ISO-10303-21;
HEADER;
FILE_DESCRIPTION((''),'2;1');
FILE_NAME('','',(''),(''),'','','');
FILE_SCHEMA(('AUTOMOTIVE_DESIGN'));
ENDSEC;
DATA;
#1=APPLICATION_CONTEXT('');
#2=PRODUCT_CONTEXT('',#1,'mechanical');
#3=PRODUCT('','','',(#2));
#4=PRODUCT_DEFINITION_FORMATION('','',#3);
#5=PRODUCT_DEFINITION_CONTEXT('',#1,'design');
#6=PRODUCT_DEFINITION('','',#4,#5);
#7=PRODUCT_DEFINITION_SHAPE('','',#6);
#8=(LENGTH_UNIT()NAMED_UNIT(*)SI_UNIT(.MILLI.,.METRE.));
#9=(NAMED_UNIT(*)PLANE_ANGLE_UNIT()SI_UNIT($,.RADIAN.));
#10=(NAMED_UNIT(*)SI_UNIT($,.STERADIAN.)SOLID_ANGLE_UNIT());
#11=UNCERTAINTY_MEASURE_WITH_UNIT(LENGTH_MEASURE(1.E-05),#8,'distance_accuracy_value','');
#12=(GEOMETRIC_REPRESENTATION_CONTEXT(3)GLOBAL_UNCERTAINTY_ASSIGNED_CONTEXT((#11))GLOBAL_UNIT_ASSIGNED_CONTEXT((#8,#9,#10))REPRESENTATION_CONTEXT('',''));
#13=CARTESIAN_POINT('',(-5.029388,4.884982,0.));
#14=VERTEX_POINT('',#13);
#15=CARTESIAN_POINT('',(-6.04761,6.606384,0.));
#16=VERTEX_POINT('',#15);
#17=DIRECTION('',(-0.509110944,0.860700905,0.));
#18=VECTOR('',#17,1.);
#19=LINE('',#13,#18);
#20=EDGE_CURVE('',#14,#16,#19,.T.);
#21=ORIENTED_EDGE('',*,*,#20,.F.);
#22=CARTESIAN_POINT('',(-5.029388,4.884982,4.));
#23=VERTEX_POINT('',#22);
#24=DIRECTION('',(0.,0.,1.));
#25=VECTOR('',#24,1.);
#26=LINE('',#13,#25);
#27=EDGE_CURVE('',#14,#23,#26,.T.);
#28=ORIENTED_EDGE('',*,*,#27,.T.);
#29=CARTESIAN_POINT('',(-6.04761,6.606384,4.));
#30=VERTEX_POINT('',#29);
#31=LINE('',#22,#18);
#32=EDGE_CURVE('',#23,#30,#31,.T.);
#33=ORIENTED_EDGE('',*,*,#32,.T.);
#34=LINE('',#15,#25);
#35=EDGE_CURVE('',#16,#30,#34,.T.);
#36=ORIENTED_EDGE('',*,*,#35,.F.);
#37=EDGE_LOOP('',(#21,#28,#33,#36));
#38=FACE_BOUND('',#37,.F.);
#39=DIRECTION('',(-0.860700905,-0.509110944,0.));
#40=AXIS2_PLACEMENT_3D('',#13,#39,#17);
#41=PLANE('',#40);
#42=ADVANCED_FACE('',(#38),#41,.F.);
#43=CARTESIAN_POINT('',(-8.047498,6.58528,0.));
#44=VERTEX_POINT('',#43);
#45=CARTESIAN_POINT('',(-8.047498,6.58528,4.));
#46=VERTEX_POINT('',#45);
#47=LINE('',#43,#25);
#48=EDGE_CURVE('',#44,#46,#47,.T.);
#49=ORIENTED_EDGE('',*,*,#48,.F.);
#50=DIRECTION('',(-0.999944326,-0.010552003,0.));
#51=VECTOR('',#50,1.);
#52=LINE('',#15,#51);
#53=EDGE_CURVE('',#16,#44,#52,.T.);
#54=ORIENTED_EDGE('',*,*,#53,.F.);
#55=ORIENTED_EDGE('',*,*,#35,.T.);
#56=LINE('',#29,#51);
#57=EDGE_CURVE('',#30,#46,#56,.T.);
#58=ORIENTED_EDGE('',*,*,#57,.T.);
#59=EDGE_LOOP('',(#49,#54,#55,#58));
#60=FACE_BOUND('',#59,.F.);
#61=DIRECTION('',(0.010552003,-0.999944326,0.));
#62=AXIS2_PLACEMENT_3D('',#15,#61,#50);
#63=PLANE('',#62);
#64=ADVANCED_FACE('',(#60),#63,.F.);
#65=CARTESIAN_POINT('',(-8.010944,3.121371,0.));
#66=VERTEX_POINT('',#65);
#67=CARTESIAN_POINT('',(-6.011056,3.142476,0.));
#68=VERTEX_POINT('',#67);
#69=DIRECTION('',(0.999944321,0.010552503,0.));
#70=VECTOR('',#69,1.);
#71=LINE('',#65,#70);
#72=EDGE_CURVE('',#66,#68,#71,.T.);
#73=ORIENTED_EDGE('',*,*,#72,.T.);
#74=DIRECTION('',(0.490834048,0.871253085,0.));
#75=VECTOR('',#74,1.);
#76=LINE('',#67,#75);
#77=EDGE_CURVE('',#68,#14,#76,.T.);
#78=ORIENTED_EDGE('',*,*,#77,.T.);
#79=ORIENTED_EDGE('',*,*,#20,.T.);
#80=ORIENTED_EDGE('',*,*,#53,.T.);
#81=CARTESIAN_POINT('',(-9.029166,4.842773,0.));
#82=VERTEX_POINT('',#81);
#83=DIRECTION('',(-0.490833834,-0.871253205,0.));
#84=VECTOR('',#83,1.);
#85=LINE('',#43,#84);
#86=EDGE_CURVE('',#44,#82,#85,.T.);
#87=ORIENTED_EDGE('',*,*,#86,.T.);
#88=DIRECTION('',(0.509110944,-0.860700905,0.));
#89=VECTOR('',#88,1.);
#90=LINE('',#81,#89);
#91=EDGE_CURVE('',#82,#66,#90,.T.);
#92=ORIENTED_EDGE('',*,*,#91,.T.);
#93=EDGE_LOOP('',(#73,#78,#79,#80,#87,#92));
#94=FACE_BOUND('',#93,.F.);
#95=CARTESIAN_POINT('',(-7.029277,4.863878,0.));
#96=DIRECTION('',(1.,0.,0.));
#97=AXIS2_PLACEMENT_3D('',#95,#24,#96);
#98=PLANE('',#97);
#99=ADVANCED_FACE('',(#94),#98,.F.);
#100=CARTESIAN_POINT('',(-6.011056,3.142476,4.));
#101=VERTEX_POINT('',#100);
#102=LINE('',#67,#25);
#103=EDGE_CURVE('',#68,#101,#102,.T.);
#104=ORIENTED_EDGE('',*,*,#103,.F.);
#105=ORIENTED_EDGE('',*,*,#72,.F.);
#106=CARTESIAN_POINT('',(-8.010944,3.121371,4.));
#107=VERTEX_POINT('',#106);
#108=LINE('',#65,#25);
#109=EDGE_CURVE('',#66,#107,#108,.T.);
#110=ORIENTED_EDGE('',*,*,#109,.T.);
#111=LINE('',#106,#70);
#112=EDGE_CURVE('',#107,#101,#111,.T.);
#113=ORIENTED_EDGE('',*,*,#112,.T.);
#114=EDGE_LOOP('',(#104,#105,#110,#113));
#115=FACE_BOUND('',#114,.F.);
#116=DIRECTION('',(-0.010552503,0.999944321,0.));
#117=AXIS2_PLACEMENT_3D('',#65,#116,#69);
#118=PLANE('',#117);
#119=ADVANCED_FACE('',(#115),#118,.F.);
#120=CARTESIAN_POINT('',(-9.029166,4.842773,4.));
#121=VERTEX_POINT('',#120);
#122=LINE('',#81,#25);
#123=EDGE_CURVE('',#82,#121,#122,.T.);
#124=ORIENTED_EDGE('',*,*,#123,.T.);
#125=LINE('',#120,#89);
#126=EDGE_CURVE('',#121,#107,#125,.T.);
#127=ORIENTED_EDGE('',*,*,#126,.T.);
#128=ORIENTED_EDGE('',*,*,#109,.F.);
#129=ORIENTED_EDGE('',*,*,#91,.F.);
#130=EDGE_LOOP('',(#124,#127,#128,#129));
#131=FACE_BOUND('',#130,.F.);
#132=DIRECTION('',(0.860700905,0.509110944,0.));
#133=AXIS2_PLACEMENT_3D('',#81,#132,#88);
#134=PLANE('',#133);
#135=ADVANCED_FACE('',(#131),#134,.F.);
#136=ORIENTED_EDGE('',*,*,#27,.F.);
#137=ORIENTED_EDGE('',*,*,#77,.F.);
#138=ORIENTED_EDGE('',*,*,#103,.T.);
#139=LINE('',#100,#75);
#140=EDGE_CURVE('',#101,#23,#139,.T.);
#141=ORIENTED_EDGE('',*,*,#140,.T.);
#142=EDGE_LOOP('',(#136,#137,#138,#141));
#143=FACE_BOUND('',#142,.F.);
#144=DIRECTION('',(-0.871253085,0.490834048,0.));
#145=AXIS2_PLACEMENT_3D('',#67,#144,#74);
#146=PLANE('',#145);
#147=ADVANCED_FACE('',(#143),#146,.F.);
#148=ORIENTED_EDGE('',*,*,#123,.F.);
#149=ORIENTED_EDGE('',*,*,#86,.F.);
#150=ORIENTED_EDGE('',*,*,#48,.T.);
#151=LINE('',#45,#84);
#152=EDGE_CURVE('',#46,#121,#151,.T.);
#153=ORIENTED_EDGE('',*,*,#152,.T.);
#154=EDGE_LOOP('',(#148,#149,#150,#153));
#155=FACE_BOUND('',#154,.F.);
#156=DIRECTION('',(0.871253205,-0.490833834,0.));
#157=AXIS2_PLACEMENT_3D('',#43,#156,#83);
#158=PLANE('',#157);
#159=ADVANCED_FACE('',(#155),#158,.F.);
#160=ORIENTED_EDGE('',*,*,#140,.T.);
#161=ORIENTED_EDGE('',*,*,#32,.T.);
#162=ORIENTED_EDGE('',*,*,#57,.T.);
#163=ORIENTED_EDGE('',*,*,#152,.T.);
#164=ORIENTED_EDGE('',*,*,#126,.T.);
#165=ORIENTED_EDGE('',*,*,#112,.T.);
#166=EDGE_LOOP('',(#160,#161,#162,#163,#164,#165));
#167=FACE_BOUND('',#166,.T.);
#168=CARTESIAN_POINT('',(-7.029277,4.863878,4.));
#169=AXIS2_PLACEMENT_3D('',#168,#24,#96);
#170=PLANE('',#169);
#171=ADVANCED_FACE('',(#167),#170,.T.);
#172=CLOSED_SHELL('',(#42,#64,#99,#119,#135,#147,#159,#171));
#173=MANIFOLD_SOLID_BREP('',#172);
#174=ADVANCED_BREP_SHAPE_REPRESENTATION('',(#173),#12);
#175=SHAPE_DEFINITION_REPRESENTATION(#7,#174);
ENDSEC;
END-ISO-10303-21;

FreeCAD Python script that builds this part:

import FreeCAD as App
import Part
import Sketcher
from FreeCAD import Vector

doc = App.newDocument("Part")
body = doc.addObject("PartDesign::Body", "Body")

# Sketch on XY plane
sketch1 = doc.addObject("Sketcher::SketchObject", "Sketch")
body.addObject(sketch1)
sketch1.AttachmentSupport = (doc.XY_Plane, [""])
sketch1.MapMode = "FlatFace"
sketch1.addGeometry(Part.LineSegment(Vector(-6, 3.1, 0), Vector(-5, 4.9, 0)), False)
sketch1.addGeometry(Part.LineSegment(Vector(-5, 4.9, 0), Vector(-6, 6.6, 0)), False)
sketch1.addGeometry(Part.LineSegment(Vector(-6, 6.6, 0), Vector(-8, 6.6, 0)), False)
sketch1.addGeometry(Part.LineSegment(Vector(-8, 6.6, 0), Vector(-9, 4.8, 0)), False)
sketch1.addGeometry(Part.LineSegment(Vector(-9, 4.8, 0), Vector(-8, 3.1, 0)), False)
sketch1.addGeometry(Part.LineSegment(Vector(-8, 3.1, 0), Vector(-6, 3.1, 0)), False)
sketch1.addConstraint(Sketcher.Constraint("Coincident", 0, 2, 1, 1))
sketch1.addConstraint(Sketcher.Constraint("Coincident", 1, 2, 2, 1))
sketch1.addConstraint(Sketcher.Constraint("Coincident", 2, 2, 3, 1))
sketch1.addConstraint(Sketcher.Constraint("Coincident", 3, 2, 4, 1))
sketch1.addConstraint(Sketcher.Constraint("Coincident", 4, 2, 5, 1))
sketch1.addConstraint(Sketcher.Constraint("Coincident", 5, 2, 0, 1))
sketch1.addConstraint(Sketcher.Constraint("Parallel", 0, 3))
sketch1.addConstraint(Sketcher.Constraint("Parallel", 1, 4))
sketch1.addConstraint(Sketcher.Constraint("Parallel", 2, 5))
sketch1.addConstraint(Sketcher.Constraint("Equal", 0, 1))
sketch1.addConstraint(Sketcher.Constraint("Equal", 1, 2))
sketch1.addConstraint(Sketcher.Constraint("Equal", 2, 3))
sketch1.addConstraint(Sketcher.Constraint("Distance", 0, 2.0))
sketch1.addConstraint(Sketcher.Constraint("DistanceY", 0, 2, 2, 2, 1.700298))
sketch1.addConstraint(Sketcher.Constraint("DistanceX", 1, 2, -1, 1, 6.04761))
sketch1.addConstraint(Sketcher.Constraint("DistanceY", -1, 1, 2, 2, 6.58528))
sketch1.addConstraint(Sketcher.Constraint("DistanceY", -1, 1, 4, 2, 3.121371))
sketch1.addConstraint(Sketcher.Constraint("DistanceX", 1, 2, 0, 2, 1.018222))
pad1 = doc.addObject("PartDesign::Pad", "Pad")
body.addObject(pad1)
pad1.Profile = sketch1
pad1.Length = 4

doc.recompute()
